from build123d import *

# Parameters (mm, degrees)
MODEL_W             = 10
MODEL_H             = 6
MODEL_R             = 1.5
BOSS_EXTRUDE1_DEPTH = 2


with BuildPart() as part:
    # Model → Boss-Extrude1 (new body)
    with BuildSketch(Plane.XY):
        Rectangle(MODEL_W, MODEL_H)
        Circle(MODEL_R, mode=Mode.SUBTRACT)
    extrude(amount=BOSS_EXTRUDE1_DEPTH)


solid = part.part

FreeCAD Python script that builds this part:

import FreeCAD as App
import Part
import Sketcher

V = App.Vector
Q = App.Units.Quantity

doc = App.newDocument("Part")
params = doc.addObject("Spreadsheet::Sheet", "Params")
for row, (alias, value) in enumerate([
    ("sketch1_diameter", "3 mm"),
    ("sketch1_width", "10 mm"),
    ("sketch1_height", "6 mm"),
    ("pad1_length", "2 mm"),
], start=1):
    params.set(f"A{row}", alias)
    params.set(f"B{row}", "=" + value)
    params.setAlias(f"B{row}", alias)

body = doc.addObject("PartDesign::Body", "Body")

sketch1 = body.newObject("Sketcher::SketchObject", "Sketch")
sketch1.AttachmentSupport = (doc.getObject("XY_Plane"), [""])
sketch1.MapMode = "FlatFace"
sketch1.addGeometry([
    Part.LineSegment(V(-5, 3, 0), V(-5, -3, 0)),
    Part.LineSegment(V(-5, -3, 0), V(5, -3, 0)),
    Part.LineSegment(V(5, -3, 0), V(5, 3, 0)),
    Part.LineSegment(V(5, 3, 0), V(-5, 3, 0)),
    Part.Circle(V(0, 0, 0), V(0, 0, 1), 1.5),
], False)
sketch1.addConstraint([
    Sketcher.Constraint("Coincident", 0, 2, 1, 1),
    Sketcher.Constraint("Coincident", 1, 2, 2, 1),
    Sketcher.Constraint("Coincident", 2, 2, 3, 1),
    Sketcher.Constraint("Coincident", 3, 2, 0, 1),
    Sketcher.Constraint("Vertical", 0),
    Sketcher.Constraint("Horizontal", 1),
    Sketcher.Constraint("Vertical", 2),
    Sketcher.Constraint("Horizontal", 3),
    Sketcher.Constraint("Coincident", 4, 3, -1, 1),
    Sketcher.Constraint("Symmetric", 0, 2, 2, 2, -1, 1),
    Sketcher.Constraint("Diameter", 4, Q("3 mm")),
    Sketcher.Constraint("DistanceX", 1, 1, 1, 2, Q("10 mm")),
    Sketcher.Constraint("DistanceY", 0, 2, 0, 1, Q("6 mm")),
])
sketch1.setExpression("Constraints[10]", "Params.sketch1_diameter")
sketch1.setExpression("Constraints[11]", "Params.sketch1_width")
sketch1.setExpression("Constraints[12]", "Params.sketch1_height")
pad1 = body.newObject("PartDesign::Pad", "Pad")
pad1.Profile = sketch1
pad1.setExpression("Length", "Params.pad1_length")

doc.recompute()
